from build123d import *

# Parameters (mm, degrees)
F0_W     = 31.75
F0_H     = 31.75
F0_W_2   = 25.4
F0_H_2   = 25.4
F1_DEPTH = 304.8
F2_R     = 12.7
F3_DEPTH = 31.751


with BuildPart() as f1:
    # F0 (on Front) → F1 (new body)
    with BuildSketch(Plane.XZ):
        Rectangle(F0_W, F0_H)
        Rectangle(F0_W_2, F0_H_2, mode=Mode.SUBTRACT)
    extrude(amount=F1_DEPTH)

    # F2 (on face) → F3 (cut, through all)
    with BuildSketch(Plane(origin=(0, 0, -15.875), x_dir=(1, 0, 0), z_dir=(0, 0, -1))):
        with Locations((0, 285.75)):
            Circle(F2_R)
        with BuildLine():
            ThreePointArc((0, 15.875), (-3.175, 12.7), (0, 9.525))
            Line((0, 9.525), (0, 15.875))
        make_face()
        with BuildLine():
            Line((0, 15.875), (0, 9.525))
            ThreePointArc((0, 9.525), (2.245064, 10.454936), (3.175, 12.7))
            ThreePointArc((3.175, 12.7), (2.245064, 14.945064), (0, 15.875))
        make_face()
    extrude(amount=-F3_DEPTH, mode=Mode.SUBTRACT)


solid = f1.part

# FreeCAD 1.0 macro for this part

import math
import FreeCAD as App
import Part
import Sketcher
Q = App.Units.Quantity


def add_polygon(sketch, points):
    """Adds a closed chain of lines whose ends are joined by coincident constraints."""
    first, n = sketch.GeometryCount, len(points)
    for a, b in zip(points, points[1:] + points[:1]):
        sketch.addGeometry(Part.LineSegment(App.Vector(*a, 0), App.Vector(*b, 0)), False)
    for i in range(n):
        sketch.addConstraint(Sketcher.Constraint("Coincident", first + i, 2, first + (i + 1) % n, 1))

doc = App.newDocument("Part")
body = doc.addObject("PartDesign::Body", "Body")

sketch1 = doc.addObject("Sketcher::SketchObject", "Sketch")
body.addObject(sketch1)
sketch1.AttachmentSupport = (doc.XZ_Plane, [""])
sketch1.MapMode = "FlatFace"
add_polygon(sketch1, [(-15.875, 15.875), (-15.875, -15.875), (15.875, -15.875), (15.875, 15.875)])
add_polygon(sketch1, [(12.7, -12.7), (-12.7, -12.7), (-12.7, 12.7), (12.7, 12.7)])
sketch1.addConstraint([
    Sketcher.Constraint("Vertical", 0),
    Sketcher.Constraint("Horizontal", 1),
    Sketcher.Constraint("Vertical", 2),
    Sketcher.Constraint("Horizontal", 3),
    Sketcher.Constraint("Horizontal", 4),
    Sketcher.Constraint("Vertical", 5),
    Sketcher.Constraint("Horizontal", 6),
    Sketcher.Constraint("Vertical", 7),
    Sketcher.Constraint("Symmetric", 0, 2, 2, 2, -1, 1),
    Sketcher.Constraint("Symmetric", 4, 2, 6, 2, -1, 1),
    Sketcher.Constraint("Equal", 3, 0),
    Sketcher.Constraint("Equal", 6, 5),
    Sketcher.Constraint("DistanceX", 4, 2, 4, 1, Q("1 in")),
    Sketcher.Constraint("DistanceX", 1, 1, 1, 2, Q("1.25 in")),
])
pad1 = doc.addObject("PartDesign::Pad", "Pad")
body.addObject(pad1)
pad1.Profile = sketch1
pad1.Length = Q("12 in")

sketch2 = doc.addObject("Sketcher::SketchObject", "Sketch001")
body.addObject(sketch2)
sketch2.AttachmentSupport = (doc.XY_Plane, [""])
sketch2.MapMode = "FlatFace"
sketch2.AttachmentOffset = App.Placement(App.Vector(0, 0, -0.625 * 25.4), App.Rotation())
sketch2.addGeometry([
    Part.Circle(App.Vector(0, -285.75, 0), App.Vector(0, 0, 1), 12.7),
    Part.ArcOfCircle(Part.Circle(App.Vector(0, -12.7, 0), App.Vector(0, 0, 1), 3.175), math.radians(90), math.radians(270)),
    Part.ArcOfCircle(Part.Circle(App.Vector(0, -12.7, 0), App.Vector(0, 0, 1), 3.175), math.radians(0.000002), math.radians(89.999998)),
    Part.ArcOfCircle(Part.Circle(App.Vector(0, -12.7, 0), App.Vector(0, 0, 1), 3.175), math.radians(-89.999998), math.radians(-0.000002)),
], False)
sketch2.addConstraint([
    Sketcher.Constraint("Tangent", 1, 1, 2, 2),
    Sketcher.Constraint("Tangent", 2, 1, 3, 2),
    Sketcher.Constraint("Tangent", 3, 1, 1, 2),
    Sketcher.Constraint("PointOnObject", 0, 3, -2),
    Sketcher.Constraint("PointOnObject", 1, 3, -2),
    Sketcher.Constraint("PointOnObject", 1, 1, -2),
    Sketcher.Constraint("PointOnObject", 3, 1, -2),
    Sketcher.Constraint("Horizontal", 3, 3, 2, 1),
    Sketcher.Constraint("Diameter", 0, Q("1 in")),
    Sketcher.Constraint("Radius", 1, Q("0.125 in")),
    Sketcher.Constraint("DistanceY", 1, 3, -1, 1, Q("0.5 in")),
    Sketcher.Constraint("DistanceY", 0, 3, -1, 1, Q("11.25 in")),
])
pocket1 = doc.addObject("PartDesign::Pocket", "Pocket")
body.addObject(pocket1)
pocket1.Profile = sketch2
pocket1.Type = "ThroughAll"
pocket1.Reversed = True

doc.recompute()
